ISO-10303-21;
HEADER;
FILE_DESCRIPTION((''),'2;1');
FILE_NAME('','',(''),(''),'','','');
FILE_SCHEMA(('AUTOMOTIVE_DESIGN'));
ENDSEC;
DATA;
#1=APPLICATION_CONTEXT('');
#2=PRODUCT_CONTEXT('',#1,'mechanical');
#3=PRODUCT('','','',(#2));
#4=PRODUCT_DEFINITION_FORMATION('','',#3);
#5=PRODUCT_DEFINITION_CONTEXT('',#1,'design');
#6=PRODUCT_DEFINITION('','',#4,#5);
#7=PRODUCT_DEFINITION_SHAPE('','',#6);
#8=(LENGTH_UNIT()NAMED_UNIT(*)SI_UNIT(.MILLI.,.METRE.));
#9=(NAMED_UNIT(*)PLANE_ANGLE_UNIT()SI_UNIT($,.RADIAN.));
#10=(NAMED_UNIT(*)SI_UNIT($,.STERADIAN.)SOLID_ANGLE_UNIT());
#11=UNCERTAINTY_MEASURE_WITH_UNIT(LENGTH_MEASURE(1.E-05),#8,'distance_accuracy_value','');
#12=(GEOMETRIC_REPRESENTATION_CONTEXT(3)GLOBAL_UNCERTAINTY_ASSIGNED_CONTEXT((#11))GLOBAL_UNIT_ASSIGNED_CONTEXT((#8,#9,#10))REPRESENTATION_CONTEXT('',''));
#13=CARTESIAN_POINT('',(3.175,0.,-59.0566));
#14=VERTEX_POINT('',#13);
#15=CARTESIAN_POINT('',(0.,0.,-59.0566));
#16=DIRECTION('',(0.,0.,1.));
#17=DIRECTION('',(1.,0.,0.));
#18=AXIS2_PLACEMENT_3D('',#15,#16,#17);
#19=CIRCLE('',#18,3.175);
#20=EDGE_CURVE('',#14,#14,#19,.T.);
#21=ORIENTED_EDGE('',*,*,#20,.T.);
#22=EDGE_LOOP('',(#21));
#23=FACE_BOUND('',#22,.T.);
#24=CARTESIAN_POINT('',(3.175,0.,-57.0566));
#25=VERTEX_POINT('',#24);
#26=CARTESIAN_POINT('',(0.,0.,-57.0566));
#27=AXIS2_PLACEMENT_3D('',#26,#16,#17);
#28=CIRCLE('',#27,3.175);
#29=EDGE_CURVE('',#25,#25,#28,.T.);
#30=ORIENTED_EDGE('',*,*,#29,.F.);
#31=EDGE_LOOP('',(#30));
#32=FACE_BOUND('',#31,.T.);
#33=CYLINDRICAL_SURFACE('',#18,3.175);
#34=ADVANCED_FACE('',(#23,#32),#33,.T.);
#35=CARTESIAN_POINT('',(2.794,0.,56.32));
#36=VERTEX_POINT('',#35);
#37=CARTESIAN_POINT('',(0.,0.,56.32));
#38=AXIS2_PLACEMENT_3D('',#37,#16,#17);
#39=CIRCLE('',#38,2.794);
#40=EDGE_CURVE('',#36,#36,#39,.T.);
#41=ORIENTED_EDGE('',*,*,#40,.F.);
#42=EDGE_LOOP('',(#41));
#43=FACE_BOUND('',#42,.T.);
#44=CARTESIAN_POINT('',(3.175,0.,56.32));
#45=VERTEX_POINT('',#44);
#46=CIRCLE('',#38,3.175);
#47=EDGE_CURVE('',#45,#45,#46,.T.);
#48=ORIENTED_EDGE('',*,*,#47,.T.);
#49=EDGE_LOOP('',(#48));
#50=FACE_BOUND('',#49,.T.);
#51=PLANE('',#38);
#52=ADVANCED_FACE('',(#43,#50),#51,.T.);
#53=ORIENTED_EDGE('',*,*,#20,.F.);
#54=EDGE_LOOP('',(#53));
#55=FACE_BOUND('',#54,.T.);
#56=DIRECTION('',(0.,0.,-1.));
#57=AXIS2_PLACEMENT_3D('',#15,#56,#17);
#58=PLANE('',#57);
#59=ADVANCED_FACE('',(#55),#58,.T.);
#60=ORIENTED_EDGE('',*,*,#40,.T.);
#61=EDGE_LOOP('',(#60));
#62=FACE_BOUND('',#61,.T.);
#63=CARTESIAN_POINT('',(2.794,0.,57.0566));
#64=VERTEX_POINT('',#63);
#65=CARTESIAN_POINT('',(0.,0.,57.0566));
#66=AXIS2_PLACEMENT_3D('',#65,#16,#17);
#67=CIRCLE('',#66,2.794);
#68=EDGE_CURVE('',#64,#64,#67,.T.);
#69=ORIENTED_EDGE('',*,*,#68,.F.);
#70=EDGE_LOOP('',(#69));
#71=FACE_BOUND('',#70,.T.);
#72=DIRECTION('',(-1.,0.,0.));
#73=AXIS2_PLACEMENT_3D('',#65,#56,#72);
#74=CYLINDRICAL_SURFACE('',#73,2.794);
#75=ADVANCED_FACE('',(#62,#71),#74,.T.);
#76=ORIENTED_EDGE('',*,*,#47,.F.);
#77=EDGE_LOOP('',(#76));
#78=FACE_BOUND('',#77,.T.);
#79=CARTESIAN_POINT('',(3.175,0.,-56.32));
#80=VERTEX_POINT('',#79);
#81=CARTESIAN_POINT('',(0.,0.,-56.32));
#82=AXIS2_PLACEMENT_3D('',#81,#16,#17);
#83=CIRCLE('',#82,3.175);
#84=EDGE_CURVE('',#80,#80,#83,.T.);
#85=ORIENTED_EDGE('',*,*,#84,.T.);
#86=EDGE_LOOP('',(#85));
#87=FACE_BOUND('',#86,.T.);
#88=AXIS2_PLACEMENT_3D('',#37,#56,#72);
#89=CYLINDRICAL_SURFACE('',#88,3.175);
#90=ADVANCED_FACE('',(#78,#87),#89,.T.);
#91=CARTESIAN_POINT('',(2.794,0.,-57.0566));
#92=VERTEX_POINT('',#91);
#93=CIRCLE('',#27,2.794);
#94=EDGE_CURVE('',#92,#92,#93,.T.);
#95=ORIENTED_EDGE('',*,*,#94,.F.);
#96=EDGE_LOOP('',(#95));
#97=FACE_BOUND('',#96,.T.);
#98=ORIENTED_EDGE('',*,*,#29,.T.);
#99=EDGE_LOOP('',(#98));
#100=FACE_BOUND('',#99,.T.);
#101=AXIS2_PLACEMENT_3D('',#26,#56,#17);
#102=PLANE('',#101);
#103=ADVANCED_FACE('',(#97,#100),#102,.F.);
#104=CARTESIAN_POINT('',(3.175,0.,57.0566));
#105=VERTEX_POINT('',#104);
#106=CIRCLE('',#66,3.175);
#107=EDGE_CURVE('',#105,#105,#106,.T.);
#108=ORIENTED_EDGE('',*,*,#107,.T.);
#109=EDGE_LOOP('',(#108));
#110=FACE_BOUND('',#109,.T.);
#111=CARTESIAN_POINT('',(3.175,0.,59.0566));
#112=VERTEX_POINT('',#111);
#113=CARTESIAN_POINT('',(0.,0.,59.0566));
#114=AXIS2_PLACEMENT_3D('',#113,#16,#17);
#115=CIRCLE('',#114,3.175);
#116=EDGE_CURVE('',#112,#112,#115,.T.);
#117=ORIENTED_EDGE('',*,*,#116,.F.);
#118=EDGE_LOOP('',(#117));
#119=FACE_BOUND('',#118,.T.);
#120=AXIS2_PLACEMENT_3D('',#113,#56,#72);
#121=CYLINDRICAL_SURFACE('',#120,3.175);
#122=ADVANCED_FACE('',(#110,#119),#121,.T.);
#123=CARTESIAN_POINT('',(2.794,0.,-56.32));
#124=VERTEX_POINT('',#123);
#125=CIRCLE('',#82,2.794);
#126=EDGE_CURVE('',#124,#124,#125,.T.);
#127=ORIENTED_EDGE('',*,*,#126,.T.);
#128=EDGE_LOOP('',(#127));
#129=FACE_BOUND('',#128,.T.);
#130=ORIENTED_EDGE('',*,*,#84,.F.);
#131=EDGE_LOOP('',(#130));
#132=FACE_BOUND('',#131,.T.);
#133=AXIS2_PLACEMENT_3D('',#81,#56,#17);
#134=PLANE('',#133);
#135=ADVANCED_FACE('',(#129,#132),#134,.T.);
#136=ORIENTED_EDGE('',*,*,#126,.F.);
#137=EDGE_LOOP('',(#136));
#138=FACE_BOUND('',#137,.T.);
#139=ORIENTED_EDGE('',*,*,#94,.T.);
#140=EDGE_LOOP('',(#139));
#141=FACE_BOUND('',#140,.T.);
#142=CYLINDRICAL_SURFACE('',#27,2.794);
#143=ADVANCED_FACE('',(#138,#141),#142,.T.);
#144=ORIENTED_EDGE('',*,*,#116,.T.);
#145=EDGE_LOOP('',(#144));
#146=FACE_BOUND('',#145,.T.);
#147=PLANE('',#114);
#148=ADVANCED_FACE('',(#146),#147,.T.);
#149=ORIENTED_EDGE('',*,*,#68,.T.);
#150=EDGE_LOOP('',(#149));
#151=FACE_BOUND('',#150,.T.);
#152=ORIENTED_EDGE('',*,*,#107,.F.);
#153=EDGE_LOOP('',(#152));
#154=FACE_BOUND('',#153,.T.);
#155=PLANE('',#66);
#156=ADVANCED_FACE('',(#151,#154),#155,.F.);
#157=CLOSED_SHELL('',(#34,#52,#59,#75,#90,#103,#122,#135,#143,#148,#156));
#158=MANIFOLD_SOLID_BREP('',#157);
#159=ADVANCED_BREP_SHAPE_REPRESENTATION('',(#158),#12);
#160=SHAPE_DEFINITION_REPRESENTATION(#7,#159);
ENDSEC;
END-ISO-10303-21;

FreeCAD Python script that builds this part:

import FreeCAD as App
import Part
import Sketcher

V = App.Vector
Q = App.Units.Quantity

doc = App.newDocument("Part")
body = doc.addObject("PartDesign::Body", "Body")

# Sketch on XY plane
sketch1 = body.newObject("Sketcher::SketchObject", "Sketch")
sketch1.AttachmentSupport = (doc.getObject("XY_Plane"), [""])
sketch1.MapMode = "FlatFace"
sketch1.addGeometry(Part.Circle(V(0, 0, 0), V(0, 0, 1), 3.2), False)
sketch1.addConstraint([
    Sketcher.Constraint("Coincident", 0, 3, -1, 1),
    Sketcher.Constraint("Diameter", 0, Q("0.25 in")),
])
pad1 = body.newObject("PartDesign::Pad", "Pad")
pad1.Profile = sketch1
pad1.Length = 56.32

# Sketch on XY plane
sketch2 = body.newObject("Sketcher::SketchObject", "Sketch001")
sketch2.AttachmentSupport = (doc.getObject("XY_Plane"), [""])
sketch2.MapMode = "FlatFace"
sketch2.AttachmentOffset = App.Placement(V(0, 0, 56.32), App.Rotation())
sketch2.addGeometry(Part.Circle(V(0, 0, 0), V(0, 0, 1), 2.8), False)
sketch2.addConstraint([
    Sketcher.Constraint("Coincident", 0, 3, -1, 1),
    Sketcher.Constraint("Diameter", 0, Q("0.22 in")),
])
pad2 = body.newObject("PartDesign::Pad", "Pad001")
pad2.Profile = sketch2
pad2.Length = Q("0.029 in")

# Sketch on XY plane
sketch3 = body.newObject("Sketcher::SketchObject", "Sketch002")
sketch3.AttachmentSupport = (doc.getObject("XY_Plane"), [""])
sketch3.MapMode = "FlatFace"
sketch3.AttachmentOffset = App.Placement(V(0, 0, 57.0566), App.Rotation())
sketch3.addGeometry(Part.Circle(V(0, 0, 0), V(0, 0, 1), 3.2), False)
sketch3.addConstraint([
    Sketcher.Constraint("Coincident", 0, 3, -1, 1),
    Sketcher.Constraint("Diameter", 0, Q("0.25 in")),
])
pad3 = body.newObject("PartDesign::Pad", "Pad002")
pad3.Profile = sketch3
pad3.Length = 2
doc.recompute()

mirrored = body.newObject("PartDesign::Mirrored", "Mirrored")
mirrored.Originals = [pad1, pad2, pad3]
mirrored.MirrorPlane = (doc.getObject("XY_Plane"), [""])
body.Tip = mirrored

doc.recompute()
